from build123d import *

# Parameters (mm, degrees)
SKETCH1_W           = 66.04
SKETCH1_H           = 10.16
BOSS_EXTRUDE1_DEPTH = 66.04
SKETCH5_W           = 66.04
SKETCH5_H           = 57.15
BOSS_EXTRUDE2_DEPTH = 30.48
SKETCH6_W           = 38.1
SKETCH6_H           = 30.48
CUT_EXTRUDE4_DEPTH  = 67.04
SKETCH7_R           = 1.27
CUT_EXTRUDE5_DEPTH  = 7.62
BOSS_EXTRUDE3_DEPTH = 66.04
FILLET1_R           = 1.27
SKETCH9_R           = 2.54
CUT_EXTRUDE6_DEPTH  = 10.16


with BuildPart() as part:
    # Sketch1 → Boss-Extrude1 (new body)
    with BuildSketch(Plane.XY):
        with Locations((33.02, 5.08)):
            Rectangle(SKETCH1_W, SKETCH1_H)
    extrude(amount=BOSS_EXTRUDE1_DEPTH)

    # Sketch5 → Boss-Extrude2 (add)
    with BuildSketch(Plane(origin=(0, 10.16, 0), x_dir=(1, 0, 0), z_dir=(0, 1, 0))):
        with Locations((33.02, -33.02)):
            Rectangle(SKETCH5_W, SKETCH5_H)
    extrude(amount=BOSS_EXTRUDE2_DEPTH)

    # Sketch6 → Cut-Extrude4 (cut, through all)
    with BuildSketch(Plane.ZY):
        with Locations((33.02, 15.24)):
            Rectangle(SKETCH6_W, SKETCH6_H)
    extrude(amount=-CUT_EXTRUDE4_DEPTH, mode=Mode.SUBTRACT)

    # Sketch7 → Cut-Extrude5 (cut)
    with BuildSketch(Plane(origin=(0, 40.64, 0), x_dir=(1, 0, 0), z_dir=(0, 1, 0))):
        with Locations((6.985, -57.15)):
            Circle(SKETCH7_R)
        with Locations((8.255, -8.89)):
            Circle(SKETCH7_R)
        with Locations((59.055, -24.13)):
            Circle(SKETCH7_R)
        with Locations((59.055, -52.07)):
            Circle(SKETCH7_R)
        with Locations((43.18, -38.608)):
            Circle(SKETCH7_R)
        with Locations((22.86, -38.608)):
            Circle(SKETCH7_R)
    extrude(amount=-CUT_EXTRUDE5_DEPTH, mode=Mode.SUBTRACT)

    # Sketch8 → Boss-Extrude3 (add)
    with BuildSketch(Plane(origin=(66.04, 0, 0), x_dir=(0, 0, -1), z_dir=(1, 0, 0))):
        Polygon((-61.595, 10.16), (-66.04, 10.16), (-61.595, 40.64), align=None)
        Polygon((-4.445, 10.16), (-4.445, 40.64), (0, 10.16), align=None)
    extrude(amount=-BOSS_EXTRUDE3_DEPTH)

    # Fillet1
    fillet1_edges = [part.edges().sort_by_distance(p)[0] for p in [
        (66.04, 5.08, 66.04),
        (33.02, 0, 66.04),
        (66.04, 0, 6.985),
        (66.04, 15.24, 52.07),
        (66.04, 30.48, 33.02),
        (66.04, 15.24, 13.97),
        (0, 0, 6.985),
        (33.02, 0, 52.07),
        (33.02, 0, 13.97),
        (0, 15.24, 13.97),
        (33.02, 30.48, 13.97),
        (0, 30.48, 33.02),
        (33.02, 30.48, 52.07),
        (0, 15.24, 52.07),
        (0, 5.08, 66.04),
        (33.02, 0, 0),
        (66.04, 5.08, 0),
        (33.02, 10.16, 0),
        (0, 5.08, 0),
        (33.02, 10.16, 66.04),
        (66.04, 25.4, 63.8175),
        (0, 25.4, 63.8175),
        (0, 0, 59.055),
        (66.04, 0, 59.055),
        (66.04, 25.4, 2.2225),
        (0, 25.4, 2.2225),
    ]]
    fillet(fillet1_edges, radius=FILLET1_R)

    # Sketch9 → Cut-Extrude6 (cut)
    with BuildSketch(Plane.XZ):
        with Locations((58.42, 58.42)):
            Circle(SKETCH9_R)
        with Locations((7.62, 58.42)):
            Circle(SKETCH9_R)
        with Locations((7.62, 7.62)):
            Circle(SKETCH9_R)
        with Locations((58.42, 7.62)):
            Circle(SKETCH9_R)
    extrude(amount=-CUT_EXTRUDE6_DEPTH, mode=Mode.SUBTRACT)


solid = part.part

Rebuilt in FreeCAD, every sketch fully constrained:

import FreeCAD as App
import Part
import Sketcher
from FreeCAD import Vector
Q = App.Units.Quantity


def edges_at(feature, points):
    """Names of the edges that pass closest to the given points."""
    edges = feature.Shape.Edges
    near = lambda p: min(range(len(edges)), key=lambda i: edges[i].distToShape(Part.Vertex(*p))[0])
    return sorted({f"Edge{near(p) + 1}" for p in points})

doc = App.newDocument("Part")
body = doc.addObject("PartDesign::Body", "Body")

# Sketch on XY plane
sketch1 = doc.addObject("Sketcher::SketchObject", "Sketch")
body.addObject(sketch1)
sketch1.AttachmentSupport = (doc.XY_Plane, [""])
sketch1.MapMode = "FlatFace"
sketch1.addGeometry([
    Part.LineSegment(Vector(0, 10.16, 0), Vector(0, 0, 0)),
    Part.LineSegment(Vector(0, 0, 0), Vector(66.04, 0, 0)),
    Part.LineSegment(Vector(66.04, 0, 0), Vector(66.04, 10.16, 0)),
    Part.LineSegment(Vector(66.04, 10.16, 0), Vector(0, 10.16, 0)),
], False)
sketch1.addConstraint([
    Sketcher.Constraint("Coincident", 0, 2, 1, 1),
    Sketcher.Constraint("Coincident", 1, 2, 2, 1),
    Sketcher.Constraint("Coincident", 2, 2, 3, 1),
    Sketcher.Constraint("Coincident", 3, 2, 0, 1),
    Sketcher.Constraint("Vertical", 0),
    Sketcher.Constraint("Horizontal", 1),
    Sketcher.Constraint("Vertical", 2),
    Sketcher.Constraint("Horizontal", 3),
    Sketcher.Constraint("Coincident", 0, 2, -1, 1),
    Sketcher.Constraint("DistanceX", 1, 1, 1, 2, Q("2.6 in")),
    Sketcher.Constraint("DistanceY", 0, 2, 0, 1, Q("0.4 in")),
])
pad1 = doc.addObject("PartDesign::Pad", "Pad")
body.addObject(pad1)
pad1.Profile = sketch1
pad1.Length = Q("2.6 in")

# Sketch on XZ plane
sketch2 = doc.addObject("Sketcher::SketchObject", "Sketch001")
body.addObject(sketch2)
sketch2.AttachmentSupport = (doc.XZ_Plane, [""])
sketch2.MapMode = "FlatFace"
sketch2.AttachmentOffset = App.Placement(Vector(0, 0, -0.4 * 25.4), App.Rotation())
sketch2.addGeometry([
    Part.LineSegment(Vector(0, 4.445, 0), Vector(0, 61.595, 0)),
    Part.LineSegment(Vector(0, 61.595, 0), Vector(66.04, 61.595, 0)),
    Part.LineSegment(Vector(66.04, 61.595, 0), Vector(66.04, 4.445, 0)),
    Part.LineSegment(Vector(66.04, 4.445, 0), Vector(0, 4.445, 0)),
], False)
sketch2.addConstraint([
    Sketcher.Constraint("Coincident", 0, 2, 1, 1),
    Sketcher.Constraint("Coincident", 1, 2, 2, 1),
    Sketcher.Constraint("Coincident", 2, 2, 3, 1),
    Sketcher.Constraint("Coincident", 3, 2, 0, 1),
    Sketcher.Constraint("Vertical", 0),
    Sketcher.Constraint("Horizontal", 1),
    Sketcher.Constraint("Vertical", 2),
    Sketcher.Constraint("Horizontal", 3),
    Sketcher.Constraint("PointOnObject", 0, 2, -2),
    Sketcher.Constraint("DistanceX", 1, 1, 1, 2, Q("2.6 in")),
    Sketcher.Constraint("DistanceY", 0, 1, 0, 2, Q("2.25 in")),
    Sketcher.Constraint("DistanceY", -1, 1, 0, 2, Q("2.425 in")),
])
pad2 = doc.addObject("PartDesign::Pad", "Pad001")
body.addObject(pad2)
pad2.Profile = sketch2
pad2.Length = Q("1.2 in")
pad2.Reversed = True

# Sketch on YZ plane
sketch3 = doc.addObject("Sketcher::SketchObject", "Sketch002")
body.addObject(sketch3)
sketch3.AttachmentSupport = (doc.YZ_Plane, [""])
sketch3.MapMode = "FlatFace"
sketch3.addGeometry([
    Part.LineSegment(Vector(30.48, 13.97, 0), Vector(0, 13.97, 0)),
    Part.LineSegment(Vector(0, 13.97, 0), Vector(0, 52.07, 0)),
    Part.LineSegment(Vector(0, 52.07, 0), Vector(30.48, 52.07, 0)),
    Part.LineSegment(Vector(30.48, 52.07, 0), Vector(30.48, 13.97, 0)),
], False)
sketch3.addConstraint([
    Sketcher.Constraint("Coincident", 0, 2, 1, 1),
    Sketcher.Constraint("Coincident", 1, 2, 2, 1),
    Sketcher.Constraint("Coincident", 2, 2, 3, 1),
    Sketcher.Constraint("Coincident", 3, 2, 0, 1),
    Sketcher.Constraint("Horizontal", 0),
    Sketcher.Constraint("Vertical", 1),
    Sketcher.Constraint("Horizontal", 2),
    Sketcher.Constraint("Vertical", 3),
    Sketcher.Constraint("PointOnObject", 0, 2, -2),
    Sketcher.Constraint("DistanceX", 0, 2, 0, 1, Q("1.2 in")),
    Sketcher.Constraint("DistanceY", 1, 1, 1, 2, Q("1.5 in")),
    Sketcher.Constraint("DistanceY", -1, 1, 0, 2, Q("0.55 in")),
])
pocket1 = doc.addObject("PartDesign::Pocket", "Pocket")
body.addObject(pocket1)
pocket1.Profile = sketch3
pocket1.Type = "ThroughAll"
pocket1.Reversed = True

# Sketch on XZ plane
sketch4 = doc.addObject("Sketcher::SketchObject", "Sketch003")
body.addObject(sketch4)
sketch4.AttachmentSupport = (doc.XZ_Plane, [""])
sketch4.MapMode = "FlatFace"
sketch4.AttachmentOffset = App.Placement(Vector(0, 0, -1.6 * 25.4), App.Rotation())
sketch4.addGeometry([
    Part.Circle(Vector(6.985, 57.15, 0), Vector(0, 0, 1), 1.27),  # 0
    Part.Circle(Vector(8.255, 8.89, 0), Vector(0, 0, 1), 1.27),  # 1
    Part.Circle(Vector(59.055, 24.13, 0), Vector(0, 0, 1), 1.27),  # 2
    Part.Circle(Vector(59.055, 52.07, 0), Vector(0, 0, 1), 1.27),  # 3
    Part.Circle(Vector(43.18, 38.608, 0), Vector(0, 0, 1), 1.27),  # 4
    Part.Circle(Vector(22.86, 38.608, 0), Vector(0, 0, 1), 1.27),  # 5
], False)
sketch4.addConstraint([
    Sketcher.Constraint("Equal", 0, 1),
    Sketcher.Constraint("Equal", 1, 2),
    Sketcher.Constraint("Equal", 2, 3),
    Sketcher.Constraint("Equal", 3, 4),
    Sketcher.Constraint("Equal", 4, 5),
    Sketcher.Constraint("Horizontal", 4, 3, 5, 3),
    Sketcher.Constraint("Vertical", 2, 3, 3, 3),
    Sketcher.Constraint("Diameter", 0, Q("0.1 in")),
    Sketcher.Constraint("DistanceX", 1, 3, 2, 3, Q("2 in")),
    Sketcher.Constraint("DistanceX", -1, 1, 4, 3, Q("1.7 in")),
    Sketcher.Constraint("DistanceX", -1, 1, 5, 3, Q("0.9 in")),
    Sketcher.Constraint("DistanceY", 1, 3, 0, 3, Q("1.9 in")),
    Sketcher.Constraint("DistanceY", 1, 3, 2, 3, Q("0.6 in")),
    Sketcher.Constraint("DistanceY", 2, 3, 3, 3, Q("1.1 in")),
    Sketcher.Constraint("DistanceY", -1, 1, 0, 3, Q("2.25 in")),
    Sketcher.Constraint("DistanceY", -1, 1, 4, 3, Q("1.52 in")),
    Sketcher.Constraint("DistanceX", 0, 3, 1, 3, Q("0.05 in")),
    Sketcher.Constraint("DistanceX", -1, 1, 0, 3, Q("0.275 in")),
])
pocket2 = doc.addObject("PartDesign::Pocket", "Pocket001")
body.addObject(pocket2)
pocket2.Profile = sketch4
pocket2.Length = Q("0.3 in")
pocket2.Reversed = True

# Sketch on YZ plane
sketch5 = doc.addObject("Sketcher::SketchObject", "Sketch004")
body.addObject(sketch5)
sketch5.AttachmentSupport = (doc.YZ_Plane, [""])
sketch5.MapMode = "FlatFace"
sketch5.AttachmentOffset = App.Placement(Vector(0, 0, 2.6 * 25.4), App.Rotation())
sketch5.addGeometry([
    Part.LineSegment(Vector(10.16, 66.04, 0), Vector(10.16, 61.595, 0)),  # 0
    Part.LineSegment(Vector(10.16, 61.595, 0), Vector(40.64, 61.595, 0)),  # 1
    Part.LineSegment(Vector(40.64, 61.595, 0), Vector(10.16, 66.04, 0)),  # 2
    Part.LineSegment(Vector(40.64, 4.445, 0), Vector(10.16, 4.445, 0)),  # 3
    Part.LineSegment(Vector(10.16, 4.445, 0), Vector(10.16, 0, 0)),  # 4
    Part.LineSegment(Vector(10.16, 0, 0), Vector(40.64, 4.445, 0)),  # 5
], False)
sketch5.addConstraint([
    Sketcher.Constraint("Coincident", 0, 2, 1, 1),
    Sketcher.Constraint("Coincident", 1, 2, 2, 1),
    Sketcher.Constraint("Coincident", 2, 2, 0, 1),
    Sketcher.Constraint("Coincident", 3, 2, 4, 1),
    Sketcher.Constraint("Coincident", 4, 2, 5, 1),
    Sketcher.Constraint("Coincident", 5, 2, 3, 1),
    Sketcher.Constraint("Vertical", 0),
    Sketcher.Constraint("Horizontal", 1),
    Sketcher.Constraint("Horizontal", 3),
    Sketcher.Constraint("Vertical", 4),
    Sketcher.Constraint("PointOnObject", 4, 2, -1),
    Sketcher.Constraint("Vertical", 2, 2, 3, 2),
    Sketcher.Constraint("Vertical", 1, 2, 5, 2),
    Sketcher.Constraint("Equal", 0, 4),
    Sketcher.Constraint("DistanceX", 1, 1, 1, 2, Q("1.2 in")),
    Sketcher.Constraint("DistanceX", -1, 1, 0, 2, Q("0.4 in")),
    Sketcher.Constraint("DistanceY", -1, 1, 2, 2, Q("2.6 in")),
    Sketcher.Constraint("DistanceY", 0, 2, 0, 1, Q("0.175 in")),
])
pad3 = doc.addObject("PartDesign::Pad", "Pad002")
body.addObject(pad3)
pad3.Profile = sketch5
pad3.Length = Q("2.6 in")
pad3.Reversed = True
doc.recompute()

fillet = doc.addObject("PartDesign::Fillet", "Fillet")
body.addObject(fillet)
fillet.Base = (pad3, edges_at(pad3, [
    (66.04, 5.08, 66.04),
    (33.02, 0, 66.04),
    (66.04, 0, 6.985),
    (66.04, 15.24, 52.07),
    (66.04, 30.48, 33.02),
    (66.04, 15.24, 13.97),
    (0, 0, 6.985),
    (33.02, 0, 52.07),
    (33.02, 0, 13.97),
    (0, 15.24, 13.97),
    (33.02, 30.48, 13.97),
    (0, 30.48, 33.02),
    (33.02, 30.48, 52.07),
    (0, 15.24, 52.07),
    (0, 5.08, 66.04),
    (33.02, 0, 0),
    (66.04, 5.08, 0),
    (33.02, 10.16, 0),
    (0, 5.08, 0),
    (33.02, 10.16, 66.04),
    (66.04, 25.4, 63.818),
    (0, 25.4, 63.818),
    (0, 0, 59.055),
    (66.04, 0, 59.055),
    (66.04, 25.4, 2.223),
    (0, 25.4, 2.223),
]))
fillet.Radius = Q("0.05 in")

# Sketch on XZ plane
sketch6 = doc.addObject("Sketcher::SketchObject", "Sketch005")
body.addObject(sketch6)
sketch6.AttachmentSupport = (doc.XZ_Plane, [""])
sketch6.MapMode = "FlatFace"
sketch6.addGeometry([
    Part.Circle(Vector(58.42, 58.42, 0), Vector(0, 0, 1), 2.54),
    Part.Circle(Vector(7.62, 58.42, 0), Vector(0, 0, 1), 2.54),
    Part.Circle(Vector(7.62, 7.62, 0), Vector(0, 0, 1), 2.54),
    Part.Circle(Vector(58.42, 7.62, 0), Vector(0, 0, 1), 2.54),
], False)
sketch6.addConstraint([
    Sketcher.Constraint("Equal", 0, 1),
    Sketcher.Constraint("Equal", 1, 2),
    Sketcher.Constraint("Equal", 2, 3),
    Sketcher.Constraint("Horizontal", 0, 3, 1, 3),
    Sketcher.Constraint("Horizontal", 2, 3, 3, 3),
    Sketcher.Constraint("Vertical", 1, 3, 2, 3),
    Sketcher.Constraint("Vertical", 0, 3, 3, 3),
    Sketcher.Constraint("Diameter", 0, Q("0.2 in")),
    Sketcher.Constraint("DistanceX", 1, 3, 0, 3, Q("2 in")),
    Sketcher.Constraint("DistanceY", 2, 3, 1, 3, Q("2 in")),
    Sketcher.Constraint("DistanceX", -1, 1, 0, 3, Q("2.3 in")),
    Sketcher.Constraint("DistanceY", -1, 1, 0, 3, Q("2.3 in")),
])
pocket3 = doc.addObject("PartDesign::Pocket", "Pocket002")
body.addObject(pocket3)
pocket3.Profile = sketch6
pocket3.Length = Q("0.4 in")

doc.recompute()
